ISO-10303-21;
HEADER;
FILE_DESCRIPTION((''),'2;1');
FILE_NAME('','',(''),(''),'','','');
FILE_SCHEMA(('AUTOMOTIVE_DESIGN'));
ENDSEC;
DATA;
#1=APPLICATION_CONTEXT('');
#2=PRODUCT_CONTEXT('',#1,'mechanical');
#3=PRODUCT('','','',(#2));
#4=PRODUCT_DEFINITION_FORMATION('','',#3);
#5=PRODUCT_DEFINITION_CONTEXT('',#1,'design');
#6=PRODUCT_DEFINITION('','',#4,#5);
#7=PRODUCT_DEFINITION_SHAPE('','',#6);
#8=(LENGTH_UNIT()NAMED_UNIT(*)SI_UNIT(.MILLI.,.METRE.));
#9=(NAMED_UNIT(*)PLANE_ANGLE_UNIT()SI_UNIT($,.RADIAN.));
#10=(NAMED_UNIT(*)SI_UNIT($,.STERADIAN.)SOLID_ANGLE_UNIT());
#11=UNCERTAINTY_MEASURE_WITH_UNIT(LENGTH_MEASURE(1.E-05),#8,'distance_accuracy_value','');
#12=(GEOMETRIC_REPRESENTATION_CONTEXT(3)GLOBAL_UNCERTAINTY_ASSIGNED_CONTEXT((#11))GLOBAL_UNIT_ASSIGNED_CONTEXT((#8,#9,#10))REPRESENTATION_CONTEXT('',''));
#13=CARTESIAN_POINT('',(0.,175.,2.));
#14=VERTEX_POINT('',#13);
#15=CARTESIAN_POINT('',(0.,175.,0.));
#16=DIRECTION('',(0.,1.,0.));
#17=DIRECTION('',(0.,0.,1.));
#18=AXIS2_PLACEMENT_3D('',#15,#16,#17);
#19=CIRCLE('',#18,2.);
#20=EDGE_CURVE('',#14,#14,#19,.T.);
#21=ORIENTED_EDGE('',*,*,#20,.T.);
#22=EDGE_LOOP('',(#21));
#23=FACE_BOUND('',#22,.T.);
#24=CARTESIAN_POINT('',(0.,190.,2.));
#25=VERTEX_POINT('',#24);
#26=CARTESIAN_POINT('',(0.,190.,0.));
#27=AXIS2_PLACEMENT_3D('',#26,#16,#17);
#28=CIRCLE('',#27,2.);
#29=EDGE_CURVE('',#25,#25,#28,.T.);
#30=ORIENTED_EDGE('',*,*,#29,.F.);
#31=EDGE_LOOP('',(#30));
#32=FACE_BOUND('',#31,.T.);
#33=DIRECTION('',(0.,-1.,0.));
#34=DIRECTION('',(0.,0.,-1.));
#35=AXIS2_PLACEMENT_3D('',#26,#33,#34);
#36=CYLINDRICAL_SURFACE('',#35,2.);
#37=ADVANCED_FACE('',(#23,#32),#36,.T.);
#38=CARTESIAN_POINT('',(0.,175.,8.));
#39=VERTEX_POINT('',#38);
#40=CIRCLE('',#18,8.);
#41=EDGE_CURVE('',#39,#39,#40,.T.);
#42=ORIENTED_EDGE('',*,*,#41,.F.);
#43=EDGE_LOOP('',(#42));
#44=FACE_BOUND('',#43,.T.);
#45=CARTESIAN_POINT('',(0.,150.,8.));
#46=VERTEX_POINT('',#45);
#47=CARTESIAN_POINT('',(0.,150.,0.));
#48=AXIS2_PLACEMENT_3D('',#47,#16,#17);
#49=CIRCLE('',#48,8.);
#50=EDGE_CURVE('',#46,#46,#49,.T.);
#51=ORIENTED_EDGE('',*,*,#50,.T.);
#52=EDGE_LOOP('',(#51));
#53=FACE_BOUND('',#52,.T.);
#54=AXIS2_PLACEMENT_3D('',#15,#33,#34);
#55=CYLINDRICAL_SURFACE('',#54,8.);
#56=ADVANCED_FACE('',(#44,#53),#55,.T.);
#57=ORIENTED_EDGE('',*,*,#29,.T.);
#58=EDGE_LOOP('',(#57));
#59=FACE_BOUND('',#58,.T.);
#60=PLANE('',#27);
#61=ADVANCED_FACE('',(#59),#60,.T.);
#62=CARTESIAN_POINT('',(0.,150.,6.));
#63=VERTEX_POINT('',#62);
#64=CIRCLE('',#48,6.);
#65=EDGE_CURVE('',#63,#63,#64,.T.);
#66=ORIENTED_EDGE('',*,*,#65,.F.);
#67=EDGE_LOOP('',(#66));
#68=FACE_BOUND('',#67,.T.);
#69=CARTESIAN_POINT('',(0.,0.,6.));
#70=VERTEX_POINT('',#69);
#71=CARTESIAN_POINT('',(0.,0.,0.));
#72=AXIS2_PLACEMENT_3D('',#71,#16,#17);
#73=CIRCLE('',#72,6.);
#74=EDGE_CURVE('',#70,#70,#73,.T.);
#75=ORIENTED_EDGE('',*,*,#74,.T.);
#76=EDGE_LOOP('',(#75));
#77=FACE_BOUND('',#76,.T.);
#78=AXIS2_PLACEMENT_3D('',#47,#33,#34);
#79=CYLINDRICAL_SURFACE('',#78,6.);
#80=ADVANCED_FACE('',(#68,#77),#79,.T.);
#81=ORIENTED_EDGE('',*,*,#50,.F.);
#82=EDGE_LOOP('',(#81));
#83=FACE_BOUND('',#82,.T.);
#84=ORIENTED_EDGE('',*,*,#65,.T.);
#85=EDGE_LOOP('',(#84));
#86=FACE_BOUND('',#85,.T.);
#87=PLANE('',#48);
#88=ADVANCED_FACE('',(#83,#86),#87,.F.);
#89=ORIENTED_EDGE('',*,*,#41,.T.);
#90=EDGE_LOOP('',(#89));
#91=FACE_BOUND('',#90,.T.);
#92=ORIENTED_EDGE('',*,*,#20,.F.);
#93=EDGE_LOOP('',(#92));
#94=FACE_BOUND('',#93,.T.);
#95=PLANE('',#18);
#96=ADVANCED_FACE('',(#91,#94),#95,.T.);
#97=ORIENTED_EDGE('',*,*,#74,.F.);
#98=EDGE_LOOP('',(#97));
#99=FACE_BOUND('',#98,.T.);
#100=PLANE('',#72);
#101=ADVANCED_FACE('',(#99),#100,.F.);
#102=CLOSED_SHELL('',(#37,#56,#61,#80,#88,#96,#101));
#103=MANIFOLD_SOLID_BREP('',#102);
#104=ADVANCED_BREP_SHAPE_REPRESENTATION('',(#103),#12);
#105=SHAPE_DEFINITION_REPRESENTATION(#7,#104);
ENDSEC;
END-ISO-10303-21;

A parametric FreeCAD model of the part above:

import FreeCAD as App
import Part
import Sketcher
Q = App.Units.Quantity

doc = App.newDocument("Part")
params = doc.addObject("Spreadsheet::Sheet", "Params")
for row, (alias, value) in enumerate([
    ("sketch1_diameter", "12 mm"),
    ("pad1_length", "150 mm"),
    ("sketch2_diameter", "16 mm"),
    ("pad2_length", "25 mm"),
    ("sketch3_diameter", "4 mm"),
    ("pad3_length", "15 mm"),
    ("sketch4_diameter", "4 mm"),
    ("pad4_length", "1.5 mm"),
], start=1):
    params.set(f"A{row}", alias)
    params.set(f"B{row}", "=" + value)
    params.setAlias(f"B{row}", alias)

body = doc.addObject("PartDesign::Body", "Body")

# Sketch on XZ plane
sketch1 = doc.addObject("Sketcher::SketchObject", "Sketch")
body.addObject(sketch1)
sketch1.AttachmentSupport = (doc.XZ_Plane, [""])
sketch1.MapMode = "FlatFace"
sketch1.addGeometry(Part.Circle(App.Vector(0, 0, 0), App.Vector(0, 0, 1), 6), False)
sketch1.addConstraint([
    Sketcher.Constraint("Coincident", 0, 3, -1, 1),
    Sketcher.Constraint("Diameter", 0, Q("12 mm")),
])
sketch1.setExpression("Constraints[1]", "Params.sketch1_diameter")
pad1 = doc.addObject("PartDesign::Pad", "Pad")
body.addObject(pad1)
pad1.Profile = sketch1
pad1.setExpression("Length", "Params.pad1_length")
pad1.Reversed = True

# Sketch on XZ plane
sketch2 = doc.addObject("Sketcher::SketchObject", "Sketch001")
body.addObject(sketch2)
sketch2.AttachmentSupport = (doc.XZ_Plane, [""])
sketch2.MapMode = "FlatFace"
sketch2.AttachmentOffset = App.Placement(App.Vector(0, 0, -150), App.Rotation())
sketch2.addGeometry(Part.Circle(App.Vector(0, 0, 0), App.Vector(0, 0, 1), 8), False)
sketch2.addConstraint([
    Sketcher.Constraint("Coincident", 0, 3, -1, 1),
    Sketcher.Constraint("Diameter", 0, Q("16 mm")),
])
sketch2.setExpression("Constraints[1]", "Params.sketch2_diameter")
pad2 = doc.addObject("PartDesign::Pad", "Pad001")
body.addObject(pad2)
pad2.Profile = sketch2
pad2.setExpression("Length", "Params.pad2_length")
pad2.Reversed = True

# Sketch on XZ plane
sketch3 = doc.addObject("Sketcher::SketchObject", "Sketch002")
body.addObject(sketch3)
sketch3.AttachmentSupport = (doc.XZ_Plane, [""])
sketch3.MapMode = "FlatFace"
sketch3.AttachmentOffset = App.Placement(App.Vector(0, 0, -175), App.Rotation())
sketch3.addGeometry(Part.Circle(App.Vector(0, 0, 0), App.Vector(0, 0, 1), 2), False)
sketch3.addConstraint([
    Sketcher.Constraint("Coincident", 0, 3, -1, 1),
    Sketcher.Constraint("Diameter", 0, Q("4 mm")),
])
sketch3.setExpression("Constraints[1]", "Params.sketch3_diameter")
pad3 = doc.addObject("PartDesign::Pad", "Pad002")
body.addObject(pad3)
pad3.Profile = sketch3
pad3.setExpression("Length", "Params.pad3_length")
pad3.Reversed = True

# Sketch on XZ plane
sketch4 = doc.addObject("Sketcher::SketchObject", "Sketch003")
body.addObject(sketch4)
sketch4.AttachmentSupport = (doc.XZ_Plane, [""])
sketch4.MapMode = "FlatFace"
sketch4.addGeometry(Part.Circle(App.Vector(0, 0, 0), App.Vector(0, 0, 1), 2), False)
sketch4.addConstraint([
    Sketcher.Constraint("Coincident", 0, 3, -1, 1),
    Sketcher.Constraint("Diameter", 0, Q("4 mm")),
])
sketch4.setExpression("Constraints[1]", "Params.sketch4_diameter")
pad4 = doc.addObject("PartDesign::Pad", "Pad003")
body.addObject(pad4)
pad4.Profile = sketch4
pad4.setExpression("Length", "Params.pad4_length")
pad4.Reversed = True

doc.recompute()
